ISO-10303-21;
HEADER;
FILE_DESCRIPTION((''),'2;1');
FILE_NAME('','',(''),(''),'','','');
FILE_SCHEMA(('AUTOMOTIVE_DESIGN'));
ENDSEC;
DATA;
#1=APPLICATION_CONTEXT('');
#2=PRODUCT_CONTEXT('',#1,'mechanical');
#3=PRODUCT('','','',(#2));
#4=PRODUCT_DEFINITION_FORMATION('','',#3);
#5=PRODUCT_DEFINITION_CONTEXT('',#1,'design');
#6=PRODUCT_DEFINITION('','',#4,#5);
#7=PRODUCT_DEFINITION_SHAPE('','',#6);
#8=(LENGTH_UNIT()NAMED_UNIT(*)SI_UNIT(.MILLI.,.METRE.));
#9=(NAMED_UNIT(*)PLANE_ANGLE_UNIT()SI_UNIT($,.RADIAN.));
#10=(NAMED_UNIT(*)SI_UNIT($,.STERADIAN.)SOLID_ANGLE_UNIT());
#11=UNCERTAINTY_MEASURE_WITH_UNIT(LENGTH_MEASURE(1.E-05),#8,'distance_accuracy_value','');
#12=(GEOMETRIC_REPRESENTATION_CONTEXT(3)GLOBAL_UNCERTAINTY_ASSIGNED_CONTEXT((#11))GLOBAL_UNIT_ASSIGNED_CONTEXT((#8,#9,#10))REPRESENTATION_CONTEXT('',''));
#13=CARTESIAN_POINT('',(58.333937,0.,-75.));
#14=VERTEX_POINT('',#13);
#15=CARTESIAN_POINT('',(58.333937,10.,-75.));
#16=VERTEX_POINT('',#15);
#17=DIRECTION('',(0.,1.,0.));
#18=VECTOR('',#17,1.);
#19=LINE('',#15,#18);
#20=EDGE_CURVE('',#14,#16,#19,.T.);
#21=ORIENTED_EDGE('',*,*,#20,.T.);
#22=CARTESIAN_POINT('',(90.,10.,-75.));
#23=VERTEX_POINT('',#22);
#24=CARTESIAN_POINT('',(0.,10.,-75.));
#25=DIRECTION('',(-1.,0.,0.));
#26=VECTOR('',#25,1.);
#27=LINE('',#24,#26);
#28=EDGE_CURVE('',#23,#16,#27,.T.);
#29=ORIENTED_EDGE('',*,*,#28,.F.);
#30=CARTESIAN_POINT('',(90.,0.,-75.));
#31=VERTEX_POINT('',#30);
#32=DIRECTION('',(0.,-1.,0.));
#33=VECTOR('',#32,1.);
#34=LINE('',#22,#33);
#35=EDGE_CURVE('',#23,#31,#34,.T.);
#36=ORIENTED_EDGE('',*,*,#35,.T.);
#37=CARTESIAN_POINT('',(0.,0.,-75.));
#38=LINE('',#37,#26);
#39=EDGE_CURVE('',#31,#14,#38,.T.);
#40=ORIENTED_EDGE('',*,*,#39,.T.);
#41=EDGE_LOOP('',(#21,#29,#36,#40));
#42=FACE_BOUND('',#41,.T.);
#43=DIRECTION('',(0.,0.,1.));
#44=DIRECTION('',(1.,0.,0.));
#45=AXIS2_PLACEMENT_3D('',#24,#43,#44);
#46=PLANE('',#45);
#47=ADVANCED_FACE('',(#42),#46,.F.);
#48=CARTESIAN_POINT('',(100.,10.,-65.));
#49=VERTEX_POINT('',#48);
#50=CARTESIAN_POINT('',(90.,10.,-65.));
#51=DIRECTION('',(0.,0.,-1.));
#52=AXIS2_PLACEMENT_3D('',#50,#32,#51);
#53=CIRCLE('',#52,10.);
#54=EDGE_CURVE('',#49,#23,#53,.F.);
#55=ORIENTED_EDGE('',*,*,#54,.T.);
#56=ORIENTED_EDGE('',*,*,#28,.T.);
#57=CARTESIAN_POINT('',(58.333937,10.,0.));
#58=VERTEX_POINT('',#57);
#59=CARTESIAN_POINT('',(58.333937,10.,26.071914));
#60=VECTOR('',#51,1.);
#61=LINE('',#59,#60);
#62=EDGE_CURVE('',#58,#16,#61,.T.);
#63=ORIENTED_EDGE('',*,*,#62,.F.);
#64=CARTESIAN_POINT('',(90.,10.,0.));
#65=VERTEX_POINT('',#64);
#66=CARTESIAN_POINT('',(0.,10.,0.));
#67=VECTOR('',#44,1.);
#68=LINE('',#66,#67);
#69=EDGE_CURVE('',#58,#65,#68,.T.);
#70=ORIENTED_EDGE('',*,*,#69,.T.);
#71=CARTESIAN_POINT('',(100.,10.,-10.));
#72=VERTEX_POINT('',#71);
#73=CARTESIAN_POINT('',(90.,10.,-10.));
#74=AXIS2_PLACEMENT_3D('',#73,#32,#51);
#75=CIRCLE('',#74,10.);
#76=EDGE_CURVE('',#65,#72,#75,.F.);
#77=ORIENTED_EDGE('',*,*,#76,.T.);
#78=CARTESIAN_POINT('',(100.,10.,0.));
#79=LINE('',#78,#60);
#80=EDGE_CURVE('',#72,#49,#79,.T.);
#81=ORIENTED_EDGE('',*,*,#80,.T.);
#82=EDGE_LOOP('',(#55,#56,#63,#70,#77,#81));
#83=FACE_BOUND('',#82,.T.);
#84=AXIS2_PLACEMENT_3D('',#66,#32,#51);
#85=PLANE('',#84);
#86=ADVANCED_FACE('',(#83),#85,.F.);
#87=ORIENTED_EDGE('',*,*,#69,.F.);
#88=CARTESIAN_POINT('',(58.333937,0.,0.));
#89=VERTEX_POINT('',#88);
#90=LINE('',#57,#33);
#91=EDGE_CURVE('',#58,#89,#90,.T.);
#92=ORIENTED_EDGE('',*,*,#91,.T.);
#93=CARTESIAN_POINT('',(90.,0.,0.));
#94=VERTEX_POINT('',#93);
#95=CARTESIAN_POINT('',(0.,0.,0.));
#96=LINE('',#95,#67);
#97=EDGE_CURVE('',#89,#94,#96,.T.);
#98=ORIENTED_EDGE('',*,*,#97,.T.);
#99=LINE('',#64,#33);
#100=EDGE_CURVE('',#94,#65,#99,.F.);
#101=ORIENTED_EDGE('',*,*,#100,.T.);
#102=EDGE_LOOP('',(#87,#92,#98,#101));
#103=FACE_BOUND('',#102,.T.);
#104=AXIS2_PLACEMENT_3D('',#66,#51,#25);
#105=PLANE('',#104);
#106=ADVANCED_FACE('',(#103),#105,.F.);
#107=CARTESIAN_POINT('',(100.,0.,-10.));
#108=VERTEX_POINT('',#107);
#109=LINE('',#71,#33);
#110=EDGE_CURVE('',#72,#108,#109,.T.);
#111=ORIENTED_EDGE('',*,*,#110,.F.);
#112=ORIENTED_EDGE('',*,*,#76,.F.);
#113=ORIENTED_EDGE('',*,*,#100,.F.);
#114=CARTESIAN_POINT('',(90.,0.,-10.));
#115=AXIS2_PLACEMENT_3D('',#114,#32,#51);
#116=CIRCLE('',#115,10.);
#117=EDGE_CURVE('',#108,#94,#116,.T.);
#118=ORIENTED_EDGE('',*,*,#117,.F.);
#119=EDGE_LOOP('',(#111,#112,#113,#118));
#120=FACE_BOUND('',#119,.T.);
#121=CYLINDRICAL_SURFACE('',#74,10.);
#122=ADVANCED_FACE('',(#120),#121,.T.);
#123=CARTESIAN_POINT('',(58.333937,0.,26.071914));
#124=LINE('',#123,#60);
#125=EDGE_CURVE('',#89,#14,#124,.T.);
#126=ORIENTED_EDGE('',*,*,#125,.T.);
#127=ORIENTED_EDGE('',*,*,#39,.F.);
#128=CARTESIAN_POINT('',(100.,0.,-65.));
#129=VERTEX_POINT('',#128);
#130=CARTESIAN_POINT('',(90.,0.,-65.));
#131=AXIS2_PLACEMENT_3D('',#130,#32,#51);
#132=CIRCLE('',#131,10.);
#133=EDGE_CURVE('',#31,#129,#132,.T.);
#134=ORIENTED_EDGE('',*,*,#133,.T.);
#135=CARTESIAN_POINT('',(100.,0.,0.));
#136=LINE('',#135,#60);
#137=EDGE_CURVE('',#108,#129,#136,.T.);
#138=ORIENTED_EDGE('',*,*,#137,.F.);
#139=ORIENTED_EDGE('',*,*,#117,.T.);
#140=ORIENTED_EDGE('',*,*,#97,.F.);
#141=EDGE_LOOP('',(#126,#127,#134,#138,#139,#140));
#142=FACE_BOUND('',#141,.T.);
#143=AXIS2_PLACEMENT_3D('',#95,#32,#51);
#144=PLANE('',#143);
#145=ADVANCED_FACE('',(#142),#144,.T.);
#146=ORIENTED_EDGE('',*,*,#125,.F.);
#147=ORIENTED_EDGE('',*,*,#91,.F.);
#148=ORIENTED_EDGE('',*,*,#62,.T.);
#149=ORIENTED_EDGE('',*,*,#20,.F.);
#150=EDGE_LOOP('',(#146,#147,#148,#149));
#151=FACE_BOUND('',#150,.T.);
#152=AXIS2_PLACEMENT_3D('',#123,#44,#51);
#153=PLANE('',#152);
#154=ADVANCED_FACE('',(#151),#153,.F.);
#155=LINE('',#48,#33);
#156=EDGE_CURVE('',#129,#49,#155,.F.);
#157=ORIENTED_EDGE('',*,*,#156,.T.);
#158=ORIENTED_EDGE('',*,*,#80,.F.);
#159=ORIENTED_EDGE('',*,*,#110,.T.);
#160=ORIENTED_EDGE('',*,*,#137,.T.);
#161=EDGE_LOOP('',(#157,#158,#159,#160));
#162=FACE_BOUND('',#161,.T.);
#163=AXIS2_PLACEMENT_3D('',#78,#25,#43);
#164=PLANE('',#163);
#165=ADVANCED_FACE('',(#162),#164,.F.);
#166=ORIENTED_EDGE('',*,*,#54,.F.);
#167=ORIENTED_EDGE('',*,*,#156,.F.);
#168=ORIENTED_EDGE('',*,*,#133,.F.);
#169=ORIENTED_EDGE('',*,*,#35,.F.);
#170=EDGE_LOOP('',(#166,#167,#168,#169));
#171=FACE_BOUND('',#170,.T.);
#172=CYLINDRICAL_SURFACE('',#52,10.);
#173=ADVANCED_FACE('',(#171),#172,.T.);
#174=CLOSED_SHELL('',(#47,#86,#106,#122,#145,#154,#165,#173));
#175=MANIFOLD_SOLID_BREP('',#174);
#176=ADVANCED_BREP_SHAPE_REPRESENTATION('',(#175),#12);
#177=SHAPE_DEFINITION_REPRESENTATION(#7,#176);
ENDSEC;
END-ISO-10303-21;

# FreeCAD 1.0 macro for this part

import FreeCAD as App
import Part
import Sketcher


def edges_at(feature, points):
    """Names of the edges that pass closest to the given points."""
    edges = feature.Shape.Edges
    near = lambda p: min(range(len(edges)), key=lambda i: edges[i].distToShape(Part.Vertex(*p))[0])
    return sorted({f"Edge{near(p) + 1}" for p in points})


def add_polygon(sketch, points):
    """Adds a closed chain of lines whose ends are joined by coincident constraints."""
    first, n = sketch.GeometryCount, len(points)
    for a, b in zip(points, points[1:] + points[:1]):
        sketch.addGeometry(Part.LineSegment(App.Vector(*a, 0), App.Vector(*b, 0)), False)
    for i in range(n):
        sketch.addConstraint(Sketcher.Constraint("Coincident", first + i, 2, first + (i + 1) % n, 1))

doc = App.newDocument("Part")
body = doc.addObject("PartDesign::Body", "Body")

# Sketch on XZ plane
sketch1 = doc.addObject("Sketcher::SketchObject", "Sketch")
body.addObject(sketch1)
sketch1.AttachmentSupport = (doc.XZ_Plane, [""])
sketch1.MapMode = "FlatFace"
add_polygon(sketch1, [(0, -75), (0, 0), (100, 0), (100, -75)])  # lines 0-3
sketch1.addConstraint([
    Sketcher.Constraint("Vertical", 0),
    Sketcher.Constraint("Horizontal", 1),
    Sketcher.Constraint("Vertical", 2),
    Sketcher.Constraint("Horizontal", 3),
    Sketcher.Constraint("Coincident", 0, 2, -1, 1),
    Sketcher.Constraint("DistanceX", 1, 1, 1, 2, 100.0),
    Sketcher.Constraint("DistanceY", 0, 1, 0, 2, 75.0),
])
pad1 = doc.addObject("PartDesign::Pad", "Pad")
body.addObject(pad1)
pad1.Profile = sketch1
pad1.Length = 10
pad1.Reversed = True
doc.recompute()

fillet = doc.addObject("PartDesign::Fillet", "Fillet")
body.addObject(fillet)
fillet.Base = (pad1, edges_at(pad1, [
    (0, 5, -75),
    (100, 5, -75),
    (100, 5, 0),
    (0, 5, 0),
]))
fillet.Radius = 10

# Sketch on XZ plane
sketch2 = doc.addObject("Sketcher::SketchObject", "Sketch001")
body.addObject(sketch2)
sketch2.AttachmentSupport = (doc.XZ_Plane, [""])
sketch2.MapMode = "FlatFace"
sketch2.AttachmentOffset = App.Placement(App.Vector(0, 0, -10), App.Rotation())
add_polygon(sketch2, [(-30.17803, -103.146971), (-30.17803, 26.071914), (58.333937, 26.071914), (58.333937, -103.146971)])  # lines 0-3
sketch2.addConstraint([
    Sketcher.Constraint("Vertical", 0),
    Sketcher.Constraint("Horizontal", 1),
    Sketcher.Constraint("Vertical", 2),
    Sketcher.Constraint("Horizontal", 3),
    Sketcher.Constraint("DistanceX", 1, 1, 1, 2, 88.511967),
    Sketcher.Constraint("DistanceY", 0, 1, 0, 2, 129.218885),
    Sketcher.Constraint("DistanceX", 0, 2, -1, 1, 30.17803),
    Sketcher.Constraint("DistanceY", 2, 2, -1, 1, 103.146971),
])
pocket1 = doc.addObject("PartDesign::Pocket", "Pocket")
body.addObject(pocket1)
pocket1.Profile = sketch2
pocket1.Type = "ThroughAll"
pocket1.Reversed = True

doc.recompute()
